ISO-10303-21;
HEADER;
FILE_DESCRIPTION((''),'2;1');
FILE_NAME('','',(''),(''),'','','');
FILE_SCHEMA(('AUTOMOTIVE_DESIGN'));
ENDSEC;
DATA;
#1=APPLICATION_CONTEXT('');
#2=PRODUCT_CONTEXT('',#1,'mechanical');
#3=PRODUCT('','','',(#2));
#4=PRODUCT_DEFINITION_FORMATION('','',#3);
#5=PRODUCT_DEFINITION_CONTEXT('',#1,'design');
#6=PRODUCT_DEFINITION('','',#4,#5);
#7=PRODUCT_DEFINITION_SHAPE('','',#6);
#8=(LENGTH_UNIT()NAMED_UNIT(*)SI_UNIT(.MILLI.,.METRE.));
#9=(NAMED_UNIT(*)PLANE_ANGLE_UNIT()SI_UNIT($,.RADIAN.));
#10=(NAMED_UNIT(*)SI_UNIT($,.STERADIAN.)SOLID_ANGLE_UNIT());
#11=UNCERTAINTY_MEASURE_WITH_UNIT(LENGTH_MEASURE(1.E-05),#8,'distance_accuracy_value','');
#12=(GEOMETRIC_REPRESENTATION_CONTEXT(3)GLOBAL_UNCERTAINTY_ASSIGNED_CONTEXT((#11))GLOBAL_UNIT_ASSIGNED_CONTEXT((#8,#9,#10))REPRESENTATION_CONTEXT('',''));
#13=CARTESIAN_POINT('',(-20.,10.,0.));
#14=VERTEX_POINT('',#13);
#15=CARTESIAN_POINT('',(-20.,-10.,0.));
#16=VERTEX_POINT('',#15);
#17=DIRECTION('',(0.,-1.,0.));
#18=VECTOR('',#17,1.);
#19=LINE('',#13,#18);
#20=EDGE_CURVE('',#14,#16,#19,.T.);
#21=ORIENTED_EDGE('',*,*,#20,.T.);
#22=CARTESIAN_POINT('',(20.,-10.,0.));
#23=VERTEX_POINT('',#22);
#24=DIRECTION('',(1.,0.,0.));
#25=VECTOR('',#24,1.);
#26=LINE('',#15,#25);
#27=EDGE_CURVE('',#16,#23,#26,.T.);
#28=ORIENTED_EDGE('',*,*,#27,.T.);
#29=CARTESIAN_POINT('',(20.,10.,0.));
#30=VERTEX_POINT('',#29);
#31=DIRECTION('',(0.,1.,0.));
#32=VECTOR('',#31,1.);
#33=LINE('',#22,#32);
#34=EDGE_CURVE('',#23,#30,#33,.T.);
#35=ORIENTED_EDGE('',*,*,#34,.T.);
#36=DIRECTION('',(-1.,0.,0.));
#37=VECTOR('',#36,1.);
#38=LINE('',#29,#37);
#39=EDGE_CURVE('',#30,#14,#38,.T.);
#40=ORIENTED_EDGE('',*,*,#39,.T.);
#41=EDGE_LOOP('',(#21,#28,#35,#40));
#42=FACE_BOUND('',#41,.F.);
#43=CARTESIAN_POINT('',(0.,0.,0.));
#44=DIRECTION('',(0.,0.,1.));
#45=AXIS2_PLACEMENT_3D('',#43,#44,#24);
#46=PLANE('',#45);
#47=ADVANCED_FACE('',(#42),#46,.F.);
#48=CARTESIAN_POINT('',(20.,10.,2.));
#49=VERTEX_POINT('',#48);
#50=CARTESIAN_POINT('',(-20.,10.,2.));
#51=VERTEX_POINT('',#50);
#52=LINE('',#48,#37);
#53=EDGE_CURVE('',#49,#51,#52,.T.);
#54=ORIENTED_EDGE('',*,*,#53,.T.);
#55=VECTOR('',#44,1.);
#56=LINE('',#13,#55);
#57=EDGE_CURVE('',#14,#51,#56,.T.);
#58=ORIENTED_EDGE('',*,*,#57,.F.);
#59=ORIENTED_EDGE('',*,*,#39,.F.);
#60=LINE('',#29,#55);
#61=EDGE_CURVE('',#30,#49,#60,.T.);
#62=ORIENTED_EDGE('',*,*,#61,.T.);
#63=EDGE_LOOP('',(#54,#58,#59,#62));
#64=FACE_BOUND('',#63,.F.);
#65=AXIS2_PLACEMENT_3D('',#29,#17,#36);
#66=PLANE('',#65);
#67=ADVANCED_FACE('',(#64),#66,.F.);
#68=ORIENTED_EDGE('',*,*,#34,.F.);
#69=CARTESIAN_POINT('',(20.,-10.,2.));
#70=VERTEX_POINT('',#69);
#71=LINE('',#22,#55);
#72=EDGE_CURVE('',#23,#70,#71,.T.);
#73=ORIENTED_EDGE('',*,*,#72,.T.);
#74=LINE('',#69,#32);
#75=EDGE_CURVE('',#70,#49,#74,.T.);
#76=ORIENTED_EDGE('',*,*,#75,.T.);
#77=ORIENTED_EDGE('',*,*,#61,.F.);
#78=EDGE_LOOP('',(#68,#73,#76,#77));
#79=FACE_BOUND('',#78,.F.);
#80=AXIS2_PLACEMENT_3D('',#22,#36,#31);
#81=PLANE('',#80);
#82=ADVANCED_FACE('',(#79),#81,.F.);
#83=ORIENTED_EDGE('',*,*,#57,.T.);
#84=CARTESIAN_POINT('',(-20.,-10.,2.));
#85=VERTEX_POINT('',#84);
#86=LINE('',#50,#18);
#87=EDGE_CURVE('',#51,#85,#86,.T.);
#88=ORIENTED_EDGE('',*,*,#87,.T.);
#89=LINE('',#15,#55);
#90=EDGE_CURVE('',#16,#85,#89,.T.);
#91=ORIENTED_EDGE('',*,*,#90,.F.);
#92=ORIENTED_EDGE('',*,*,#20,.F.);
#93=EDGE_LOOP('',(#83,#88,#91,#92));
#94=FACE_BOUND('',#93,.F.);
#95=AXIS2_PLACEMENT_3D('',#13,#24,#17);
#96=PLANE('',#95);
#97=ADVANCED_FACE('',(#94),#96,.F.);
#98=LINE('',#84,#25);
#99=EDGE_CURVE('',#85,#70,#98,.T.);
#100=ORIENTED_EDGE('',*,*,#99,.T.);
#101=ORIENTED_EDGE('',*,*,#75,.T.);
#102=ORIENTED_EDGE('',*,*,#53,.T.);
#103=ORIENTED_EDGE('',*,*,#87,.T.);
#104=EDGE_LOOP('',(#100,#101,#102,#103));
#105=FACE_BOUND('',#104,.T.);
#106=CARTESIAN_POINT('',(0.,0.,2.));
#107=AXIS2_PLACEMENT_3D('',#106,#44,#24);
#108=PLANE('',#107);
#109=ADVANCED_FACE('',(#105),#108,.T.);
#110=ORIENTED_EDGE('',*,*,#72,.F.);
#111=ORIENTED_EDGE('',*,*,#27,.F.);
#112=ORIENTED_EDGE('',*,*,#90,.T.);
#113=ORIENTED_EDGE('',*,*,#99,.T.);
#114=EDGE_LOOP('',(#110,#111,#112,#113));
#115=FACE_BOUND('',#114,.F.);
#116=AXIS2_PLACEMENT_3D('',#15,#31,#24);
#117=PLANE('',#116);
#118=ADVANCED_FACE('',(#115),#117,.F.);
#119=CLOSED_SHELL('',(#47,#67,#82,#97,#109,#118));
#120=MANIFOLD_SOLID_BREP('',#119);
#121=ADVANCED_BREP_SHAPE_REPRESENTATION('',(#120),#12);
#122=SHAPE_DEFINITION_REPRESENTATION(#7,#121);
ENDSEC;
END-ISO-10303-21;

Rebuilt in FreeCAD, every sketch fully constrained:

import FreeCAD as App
import Part
import Sketcher
from FreeCAD import Vector


def add_polygon(sketch, points):
    """Adds a closed chain of lines whose ends are joined by coincident constraints."""
    first, n = sketch.GeometryCount, len(points)
    for a, b in zip(points, points[1:] + points[:1]):
        sketch.addGeometry(Part.LineSegment(App.Vector(*a, 0), App.Vector(*b, 0)), False)
    for i in range(n):
        sketch.addConstraint(Sketcher.Constraint("Coincident", first + i, 2, first + (i + 1) % n, 1))

doc = App.newDocument("Part")
params = doc.addObject("Spreadsheet::Sheet", "Params")
for row, (alias, value) in enumerate([
    ("sketch1_width", "40 mm"),
    ("sketch1_height", "20 mm"),
    ("pad1_length", "2 mm"),
], start=1):
    params.set(f"A{row}", alias)
    params.set(f"B{row}", "=" + value)
    params.setAlias(f"B{row}", alias)

body = doc.addObject("PartDesign::Body", "Body")

# Sketch on XY plane
sketch1 = doc.addObject("Sketcher::SketchObject", "Sketch")
body.addObject(sketch1)
sketch1.AttachmentSupport = (doc.XY_Plane, [""])
sketch1.MapMode = "FlatFace"
add_polygon(sketch1, [(-20, 10), (-20, -10), (20, -10), (20, 10)])  # lines 0-3
sketch1.addConstraint([
    Sketcher.Constraint("Vertical", 0),
    Sketcher.Constraint("Horizontal", 1),
    Sketcher.Constraint("Vertical", 2),
    Sketcher.Constraint("Horizontal", 3),
    Sketcher.Constraint("Symmetric", 0, 2, 2, 2, -1, 1),
    Sketcher.Constraint("DistanceX", 1, 1, 1, 2, 40.0),
    Sketcher.Constraint("DistanceY", 0, 2, 0, 1, 20.0),
])
sketch1.setExpression("Constraints[9]", "Params.sketch1_width")
sketch1.setExpression("Constraints[10]", "Params.sketch1_height")
pad1 = doc.addObject("PartDesign::Pad", "Pad")
body.addObject(pad1)
pad1.Profile = sketch1
pad1.setExpression("Length", "Params.pad1_length")

doc.recompute()
